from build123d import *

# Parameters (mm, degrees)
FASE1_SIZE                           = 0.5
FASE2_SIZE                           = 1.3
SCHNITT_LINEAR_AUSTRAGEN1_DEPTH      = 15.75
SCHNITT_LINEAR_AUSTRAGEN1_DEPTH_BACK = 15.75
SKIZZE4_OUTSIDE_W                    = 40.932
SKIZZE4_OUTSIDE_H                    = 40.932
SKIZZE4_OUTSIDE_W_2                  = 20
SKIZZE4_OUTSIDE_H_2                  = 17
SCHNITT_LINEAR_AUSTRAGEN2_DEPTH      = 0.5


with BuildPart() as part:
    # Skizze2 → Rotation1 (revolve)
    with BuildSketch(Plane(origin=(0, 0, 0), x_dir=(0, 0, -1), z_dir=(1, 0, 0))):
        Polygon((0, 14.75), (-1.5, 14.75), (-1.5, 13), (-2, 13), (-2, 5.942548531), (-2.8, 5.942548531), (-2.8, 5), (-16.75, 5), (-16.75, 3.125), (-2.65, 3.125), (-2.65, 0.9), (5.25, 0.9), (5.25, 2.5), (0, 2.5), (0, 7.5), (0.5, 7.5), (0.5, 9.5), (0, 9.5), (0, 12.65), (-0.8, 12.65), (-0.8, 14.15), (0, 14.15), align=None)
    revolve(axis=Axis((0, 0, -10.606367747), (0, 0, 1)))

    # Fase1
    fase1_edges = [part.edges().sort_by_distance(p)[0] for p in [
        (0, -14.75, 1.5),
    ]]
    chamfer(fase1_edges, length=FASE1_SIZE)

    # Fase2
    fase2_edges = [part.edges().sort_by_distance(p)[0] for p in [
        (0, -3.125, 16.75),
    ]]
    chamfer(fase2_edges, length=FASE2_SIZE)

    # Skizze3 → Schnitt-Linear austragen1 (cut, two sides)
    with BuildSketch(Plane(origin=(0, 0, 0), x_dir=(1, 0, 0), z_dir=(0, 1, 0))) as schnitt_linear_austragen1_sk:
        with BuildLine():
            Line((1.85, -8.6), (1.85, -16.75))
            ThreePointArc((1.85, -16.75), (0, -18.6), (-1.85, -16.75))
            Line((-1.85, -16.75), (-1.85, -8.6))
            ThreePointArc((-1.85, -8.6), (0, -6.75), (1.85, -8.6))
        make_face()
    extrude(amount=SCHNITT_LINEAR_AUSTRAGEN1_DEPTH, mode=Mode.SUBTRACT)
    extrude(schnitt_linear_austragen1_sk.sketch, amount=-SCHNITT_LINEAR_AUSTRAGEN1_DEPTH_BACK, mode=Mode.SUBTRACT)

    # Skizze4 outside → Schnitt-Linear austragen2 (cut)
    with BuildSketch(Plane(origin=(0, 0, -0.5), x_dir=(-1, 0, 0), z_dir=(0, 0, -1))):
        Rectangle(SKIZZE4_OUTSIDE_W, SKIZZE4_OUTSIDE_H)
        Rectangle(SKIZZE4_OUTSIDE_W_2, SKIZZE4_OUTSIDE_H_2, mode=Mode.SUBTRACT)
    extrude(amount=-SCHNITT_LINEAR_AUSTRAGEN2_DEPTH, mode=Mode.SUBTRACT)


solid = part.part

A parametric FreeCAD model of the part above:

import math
import FreeCAD as App
import Part
import Sketcher
Q = App.Units.Quantity


def edges_at(feature, points):
    """Names of the edges that pass closest to the given points."""
    edges = feature.Shape.Edges
    near = lambda p: min(range(len(edges)), key=lambda i: edges[i].distToShape(Part.Vertex(*p))[0])
    return sorted({f"Edge{near(p) + 1}" for p in points})

doc = App.newDocument("Part")
params = doc.addObject("Spreadsheet::Sheet", "Params")
for row, (alias, value) in enumerate([
    ("sketch1_width", "5 mm"),
    ("sketch1_width2", "2 mm"),
    ("sketch1_width3", "1.6 mm"),
    ("sketch1_width4", "1.5 mm"),
    ("sketch1_width5", "0.6 mm"),
    ("revolution_angle", "360 deg"),
    ("chamfer_size", "0.5 mm"),
    ("chamfer2_size", "1.3 mm"),
    ("sketch2_radius", "1.85 mm"),
    ("sketch2_height", "8.15 mm"),
    ("sketch3_width", "20 mm"),
    ("sketch3_height", "17 mm"),
    ("pocket2_length", "0.5 mm"),
], start=1):
    params.set(f"A{row}", alias)
    params.set(f"B{row}", "=" + value)
    params.setAlias(f"B{row}", alias)

body = doc.addObject("PartDesign::Body", "Body")

sketch1 = doc.addObject("Sketcher::SketchObject", "Sketch")
body.addObject(sketch1)
sketch1.AttachmentSupport = (doc.YZ_Plane, [""])
sketch1.MapMode = "FlatFace"
sketch1.addGeometry([
    Part.LineSegment(App.Vector(14.75, 0, 0), App.Vector(14.75, 1.5, 0)),
    Part.LineSegment(App.Vector(14.75, 1.5, 0), App.Vector(13, 1.5, 0)),
    Part.LineSegment(App.Vector(13, 1.5, 0), App.Vector(13, 2, 0)),
    Part.LineSegment(App.Vector(13, 2, 0), App.Vector(5.942549, 2, 0)),
    Part.LineSegment(App.Vector(5.942549, 2, 0), App.Vector(5.942549, 2.8, 0)),
    Part.LineSegment(App.Vector(5.942549, 2.8, 0), App.Vector(5, 2.8, 0)),
    Part.LineSegment(App.Vector(5, 2.8, 0), App.Vector(5, 16.75, 0)),
    Part.LineSegment(App.Vector(5, 16.75, 0), App.Vector(3.125, 16.75, 0)),
    Part.LineSegment(App.Vector(3.125, 16.75, 0), App.Vector(3.125, 2.65, 0)),
    Part.LineSegment(App.Vector(3.125, 2.65, 0), App.Vector(0.9, 2.65, 0)),
    Part.LineSegment(App.Vector(0.9, 2.65, 0), App.Vector(0.9, -5.25, 0)),
    Part.LineSegment(App.Vector(0.9, -5.25, 0), App.Vector(2.5, -5.25, 0)),
    Part.LineSegment(App.Vector(2.5, -5.25, 0), App.Vector(2.5, 0, 0)),
    Part.LineSegment(App.Vector(2.5, 0, 0), App.Vector(7.5, 0, 0)),
    Part.LineSegment(App.Vector(7.5, 0, 0), App.Vector(7.5, -0.5, 0)),
    Part.LineSegment(App.Vector(7.5, -0.5, 0), App.Vector(9.5, -0.5, 0)),
    Part.LineSegment(App.Vector(9.5, -0.5, 0), App.Vector(9.5, 0, 0)),
    Part.LineSegment(App.Vector(9.5, 0, 0), App.Vector(12.65, 0, 0)),
    Part.LineSegment(App.Vector(12.65, 0, 0), App.Vector(12.65, 0.8, 0)),
    Part.LineSegment(App.Vector(12.65, 0.8, 0), App.Vector(14.15, 0.8, 0)),
    Part.LineSegment(App.Vector(14.15, 0.8, 0), App.Vector(14.15, 0, 0)),
    Part.LineSegment(App.Vector(14.15, 0, 0), App.Vector(14.75, 0, 0)),
], False)
sketch1.addConstraint([
    Sketcher.Constraint("Coincident", 0, 2, 1, 1),
    Sketcher.Constraint("Coincident", 1, 2, 2, 1),
    Sketcher.Constraint("Coincident", 2, 2, 3, 1),
    Sketcher.Constraint("Coincident", 3, 2, 4, 1),
    Sketcher.Constraint("Coincident", 4, 2, 5, 1),
    Sketcher.Constraint("Coincident", 5, 2, 6, 1),
    Sketcher.Constraint("Coincident", 6, 2, 7, 1),
    Sketcher.Constraint("Coincident", 7, 2, 8, 1),
    Sketcher.Constraint("Coincident", 8, 2, 9, 1),
    Sketcher.Constraint("Coincident", 9, 2, 10, 1),
    Sketcher.Constraint("Coincident", 10, 2, 11, 1),
    Sketcher.Constraint("Coincident", 11, 2, 12, 1),
    Sketcher.Constraint("Coincident", 12, 2, 13, 1),
    Sketcher.Constraint("Coincident", 13, 2, 14, 1),
    Sketcher.Constraint("Coincident", 14, 2, 15, 1),
    Sketcher.Constraint("Coincident", 15, 2, 16, 1),
    Sketcher.Constraint("Coincident", 16, 2, 17, 1),
    Sketcher.Constraint("Coincident", 17, 2, 18, 1),
    Sketcher.Constraint("Coincident", 18, 2, 19, 1),
    Sketcher.Constraint("Coincident", 19, 2, 20, 1),
    Sketcher.Constraint("Coincident", 20, 2, 21, 1),
    Sketcher.Constraint("Coincident", 21, 2, 0, 1),
    Sketcher.Constraint("Vertical", 0),
    Sketcher.Constraint("Horizontal", 1),
    Sketcher.Constraint("Vertical", 2),
    Sketcher.Constraint("Horizontal", 3),
    Sketcher.Constraint("Vertical", 4),
    Sketcher.Constraint("Horizontal", 5),
    Sketcher.Constraint("Vertical", 6),
    Sketcher.Constraint("Horizontal", 7),
    Sketcher.Constraint("Vertical", 8),
    Sketcher.Constraint("Horizontal", 9),
    Sketcher.Constraint("Vertical", 10),
    Sketcher.Constraint("Horizontal", 11),
    Sketcher.Constraint("Vertical", 12),
    Sketcher.Constraint("Horizontal", 13),
    Sketcher.Constraint("Vertical", 14),
    Sketcher.Constraint("Horizontal", 15),
    Sketcher.Constraint("Vertical", 16),
    Sketcher.Constraint("Horizontal", 17),
    Sketcher.Constraint("Vertical", 18),
    Sketcher.Constraint("Horizontal", 19),
    Sketcher.Constraint("Vertical", 20),
    Sketcher.Constraint("Horizontal", 21),
    Sketcher.Constraint("PointOnObject", 12, 2, -1),
    Sketcher.Constraint("PointOnObject", 16, 2, -1),
    Sketcher.Constraint("PointOnObject", 20, 2, -1),
    Sketcher.Constraint("Equal", 19, 0),
    Sketcher.Constraint("Equal", 2, 14),
    Sketcher.Constraint("Equal", 4, 18),
    Sketcher.Constraint("DistanceX", 13, 1, 13, 2, Q("5 mm")),
    Sketcher.Constraint("DistanceX", 15, 1, 15, 2, Q("2 mm")),
    Sketcher.Constraint("DistanceX", 11, 1, 11, 2, Q("1.6 mm")),
    Sketcher.Constraint("DistanceX", 19, 1, 19, 2, Q("1.5 mm")),
    Sketcher.Constraint("DistanceX", 21, 1, 21, 2, Q("0.6 mm")),
    Sketcher.Constraint("DistanceY", 2, 1, 2, 2, Q("0.5 mm")),
    Sketcher.Constraint("DistanceY", 4, 1, 4, 2, Q("0.8 mm")),
    Sketcher.Constraint("DistanceY", 8, 2, 8, 1, Q("14.1 mm")),
    Sketcher.Constraint("DistanceY", 10, 2, 10, 1, Q("7.9 mm")),
    Sketcher.Constraint("DistanceX", -1, 1, 1, 2, Q("13 mm")),
    Sketcher.Constraint("DistanceX", -1, 1, 5, 2, Q("5 mm")),
    Sketcher.Constraint("DistanceX", 1, 2, 1, 1, Q("1.75 mm")),
    Sketcher.Constraint("DistanceX", 17, 1, 17, 2, Q("3.15 mm")),
    Sketcher.Constraint("DistanceY", 6, 1, 6, 2, Q("13.95 mm")),
    Sketcher.Constraint("DistanceX", 7, 2, 7, 1, Q("1.875 mm")),
    Sketcher.Constraint("DistanceX", 3, 2, 3, 1, Q("7.057451 mm")),
])
sketch1.setExpression("Constraints[50]", "Params.sketch1_width")
sketch1.setExpression("Constraints[51]", "Params.sketch1_width2")
sketch1.setExpression("Constraints[52]", "Params.sketch1_width3")
sketch1.setExpression("Constraints[53]", "Params.sketch1_width4")
sketch1.setExpression("Constraints[54]", "Params.sketch1_width5")
revolution = doc.addObject("PartDesign::Revolution", "Revolution")
body.addObject(revolution)
revolution.Profile = sketch1
revolution.ReferenceAxis = (sketch1, ["V_Axis"])
revolution.setExpression("Angle", "Params.revolution_angle")
doc.recompute()

chamfer = doc.addObject("PartDesign::Chamfer", "Chamfer")
body.addObject(chamfer)
chamfer.Base = (revolution, edges_at(revolution, [(0, -14.75, 1.5)]))
chamfer.setExpression("Size", "Params.chamfer_size")
doc.recompute()

chamfer2 = doc.addObject("PartDesign::Chamfer", "Chamfer001")
body.addObject(chamfer2)
chamfer2.Base = (chamfer, edges_at(chamfer, [(0, -3.125, 16.75)]))
chamfer2.setExpression("Size", "Params.chamfer2_size")

sketch2 = doc.addObject("Sketcher::SketchObject", "Sketch001")
body.addObject(sketch2)
sketch2.AttachmentSupport = (doc.XZ_Plane, [""])
sketch2.MapMode = "FlatFace"
sketch2.addGeometry([
    Part.LineSegment(App.Vector(1.85, 16.75, 0), App.Vector(1.85, 8.6, 0)),
    Part.ArcOfCircle(Part.Circle(App.Vector(0, 8.6, 0), App.Vector(0, 0, 1), 1.85), math.radians(180), math.radians(360)),
    Part.LineSegment(App.Vector(-1.85, 8.6, 0), App.Vector(-1.85, 16.75, 0)),
    Part.ArcOfCircle(Part.Circle(App.Vector(0, 16.75, 0), App.Vector(0, 0, 1), 1.85), math.radians(0), math.radians(180)),
], False)
sketch2.addConstraint([
    Sketcher.Constraint("Tangent", 0, 2, 1, 2),
    Sketcher.Constraint("Tangent", 1, 1, 2, 1),
    Sketcher.Constraint("Tangent", 2, 2, 3, 2),
    Sketcher.Constraint("Tangent", 3, 1, 0, 1),
    Sketcher.Constraint("Vertical", 0),
    Sketcher.Constraint("Vertical", 2),
    Sketcher.Constraint("PointOnObject", 1, 3, -2),
    Sketcher.Constraint("Radius", 1, Q("1.85 mm")),
    Sketcher.Constraint("DistanceY", 0, 2, 0, 1, Q("8.15 mm")),
    Sketcher.Constraint("DistanceY", -1, 1, 1, 3, Q("8.6 mm")),
])
sketch2.setExpression("Constraints[7]", "Params.sketch2_radius")
sketch2.setExpression("Constraints[8]", "Params.sketch2_height")
pocket1 = doc.addObject("PartDesign::Pocket", "Pocket")
body.addObject(pocket1)
pocket1.Profile = sketch2
pocket1.Type = "ThroughAll"
pocket1.Midplane = True

sketch3 = doc.addObject("Sketcher::SketchObject", "Sketch002")
body.addObject(sketch3)
sketch3.AttachmentSupport = (doc.XY_Plane, [""])
sketch3.MapMode = "FlatFace"
sketch3.AttachmentOffset = App.Placement(App.Vector(0, 0, -0.5), App.Rotation())
sketch3.addGeometry([
    Part.LineSegment(App.Vector(20.466, 20.466, 0), App.Vector(20.466, -20.466, 0)),
    Part.LineSegment(App.Vector(20.466, -20.466, 0), App.Vector(-20.466, -20.466, 0)),
    Part.LineSegment(App.Vector(-20.466, -20.466, 0), App.Vector(-20.466, 20.466, 0)),
    Part.LineSegment(App.Vector(-20.466, 20.466, 0), App.Vector(20.466, 20.466, 0)),
    Part.LineSegment(App.Vector(-10, -8.5, 0), App.Vector(10, -8.5, 0)),
    Part.LineSegment(App.Vector(10, -8.5, 0), App.Vector(10, 8.5, 0)),
    Part.LineSegment(App.Vector(10, 8.5, 0), App.Vector(-10, 8.5, 0)),
    Part.LineSegment(App.Vector(-10, 8.5, 0), App.Vector(-10, -8.5, 0)),
], False)
sketch3.addConstraint([
    Sketcher.Constraint("Coincident", 0, 2, 1, 1),
    Sketcher.Constraint("Coincident", 1, 2, 2, 1),
    Sketcher.Constraint("Coincident", 2, 2, 3, 1),
    Sketcher.Constraint("Coincident", 3, 2, 0, 1),
    Sketcher.Constraint("Coincident", 4, 2, 5, 1),
    Sketcher.Constraint("Coincident", 5, 2, 6, 1),
    Sketcher.Constraint("Coincident", 6, 2, 7, 1),
    Sketcher.Constraint("Coincident", 7, 2, 4, 1),
    Sketcher.Constraint("Vertical", 0),
    Sketcher.Constraint("Horizontal", 1),
    Sketcher.Constraint("Vertical", 2),
    Sketcher.Constraint("Horizontal", 3),
    Sketcher.Constraint("Horizontal", 4),
    Sketcher.Constraint("Vertical", 5),
    Sketcher.Constraint("Horizontal", 6),
    Sketcher.Constraint("Vertical", 7),
    Sketcher.Constraint("Symmetric", 0, 2, 2, 2, -1, 1),
    Sketcher.Constraint("Symmetric", 4, 2, 6, 2, -1, 1),
    Sketcher.Constraint("Equal", 3, 0),
    Sketcher.Constraint("DistanceX", 4, 1, 4, 2, Q("20 mm")),
    Sketcher.Constraint("DistanceY", 5, 1, 5, 2, Q("17 mm")),
    Sketcher.Constraint("DistanceX", 1, 2, 1, 1, Q("40.932 mm")),
])
sketch3.setExpression("Constraints[19]", "Params.sketch3_width")
sketch3.setExpression("Constraints[20]", "Params.sketch3_height")
pocket2 = doc.addObject("PartDesign::Pocket", "Pocket001")
body.addObject(pocket2)
pocket2.Profile = sketch3
pocket2.setExpression("Length", "Params.pocket2_length")
pocket2.Reversed = True

doc.recompute()
